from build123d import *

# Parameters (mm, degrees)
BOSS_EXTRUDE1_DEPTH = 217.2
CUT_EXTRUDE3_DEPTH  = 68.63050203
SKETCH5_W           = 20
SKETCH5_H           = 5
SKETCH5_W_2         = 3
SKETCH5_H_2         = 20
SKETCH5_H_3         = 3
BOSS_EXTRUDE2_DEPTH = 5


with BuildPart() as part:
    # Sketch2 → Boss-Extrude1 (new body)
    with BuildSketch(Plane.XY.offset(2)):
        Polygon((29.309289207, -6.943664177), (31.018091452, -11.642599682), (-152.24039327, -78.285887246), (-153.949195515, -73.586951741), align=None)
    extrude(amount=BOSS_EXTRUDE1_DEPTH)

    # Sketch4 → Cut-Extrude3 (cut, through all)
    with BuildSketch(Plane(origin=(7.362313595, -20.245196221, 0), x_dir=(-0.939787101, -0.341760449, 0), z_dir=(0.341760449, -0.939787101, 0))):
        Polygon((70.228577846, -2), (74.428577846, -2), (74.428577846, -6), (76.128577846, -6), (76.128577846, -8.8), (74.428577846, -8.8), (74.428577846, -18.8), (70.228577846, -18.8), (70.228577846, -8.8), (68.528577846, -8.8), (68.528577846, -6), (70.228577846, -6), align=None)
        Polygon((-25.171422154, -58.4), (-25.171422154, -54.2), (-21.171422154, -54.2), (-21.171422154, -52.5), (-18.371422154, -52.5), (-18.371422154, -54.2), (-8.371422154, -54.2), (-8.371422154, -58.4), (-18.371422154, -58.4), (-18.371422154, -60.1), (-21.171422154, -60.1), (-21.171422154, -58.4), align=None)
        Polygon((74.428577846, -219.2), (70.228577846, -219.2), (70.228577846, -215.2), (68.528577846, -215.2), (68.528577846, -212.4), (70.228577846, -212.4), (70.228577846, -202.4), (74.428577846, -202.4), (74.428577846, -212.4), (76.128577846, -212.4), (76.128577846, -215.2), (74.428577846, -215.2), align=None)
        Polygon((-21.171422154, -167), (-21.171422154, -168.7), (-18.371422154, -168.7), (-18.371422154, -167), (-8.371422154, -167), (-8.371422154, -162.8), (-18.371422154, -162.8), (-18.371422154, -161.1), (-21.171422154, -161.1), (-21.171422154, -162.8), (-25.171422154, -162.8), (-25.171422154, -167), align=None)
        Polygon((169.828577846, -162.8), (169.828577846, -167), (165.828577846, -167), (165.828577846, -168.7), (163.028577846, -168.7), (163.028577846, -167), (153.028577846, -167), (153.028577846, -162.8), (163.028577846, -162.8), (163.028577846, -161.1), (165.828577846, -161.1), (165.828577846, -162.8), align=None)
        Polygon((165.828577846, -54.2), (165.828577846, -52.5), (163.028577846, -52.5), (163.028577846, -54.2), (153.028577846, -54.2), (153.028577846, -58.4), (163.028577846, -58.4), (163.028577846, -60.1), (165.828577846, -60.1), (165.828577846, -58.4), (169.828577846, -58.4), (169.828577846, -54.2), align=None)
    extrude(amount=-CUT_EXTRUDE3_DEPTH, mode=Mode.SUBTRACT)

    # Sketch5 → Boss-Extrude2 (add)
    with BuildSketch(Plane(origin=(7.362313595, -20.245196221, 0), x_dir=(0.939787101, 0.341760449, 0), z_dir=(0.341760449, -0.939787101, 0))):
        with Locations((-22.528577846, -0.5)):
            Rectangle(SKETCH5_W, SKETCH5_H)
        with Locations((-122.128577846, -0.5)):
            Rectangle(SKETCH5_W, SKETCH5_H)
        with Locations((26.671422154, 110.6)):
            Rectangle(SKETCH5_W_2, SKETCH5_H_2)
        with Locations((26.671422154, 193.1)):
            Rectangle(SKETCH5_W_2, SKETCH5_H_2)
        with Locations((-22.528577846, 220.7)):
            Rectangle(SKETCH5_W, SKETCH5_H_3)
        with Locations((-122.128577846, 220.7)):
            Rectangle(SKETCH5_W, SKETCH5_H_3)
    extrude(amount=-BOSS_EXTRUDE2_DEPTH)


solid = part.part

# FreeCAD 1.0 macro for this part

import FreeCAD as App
import Part
import Sketcher

V = App.Vector
Q = App.Units.Quantity


def add_polygon(sketch, points):
    """Adds a closed chain of lines whose ends are joined by coincident constraints."""
    first, n = sketch.GeometryCount, len(points)
    for a, b in zip(points, points[1:] + points[:1]):
        sketch.addGeometry(Part.LineSegment(App.Vector(*a, 0), App.Vector(*b, 0)), False)
    for i in range(n):
        sketch.addConstraint(Sketcher.Constraint("Coincident", first + i, 2, first + (i + 1) % n, 1))

doc = App.newDocument("Part")
params = doc.addObject("Spreadsheet::Sheet", "Params")
for row, (alias, value) in enumerate([
    ("sketch1_length", "5 mm"),
    ("sketch1_length2", "195 mm"),
    ("pad1_length", "217.2 mm"),
    ("sketch2_width", "4 mm"),
    ("sketch2_width2", "10 mm"),
    ("sketch2_width3", "4.2 mm"),
    ("sketch2_width4", "1.7 mm"),
    ("sketch2_width5", "2.8 mm"),
    ("sketch3_width", "20 mm"),
    ("sketch3_width2", "3 mm"),
    ("sketch3_height", "5 mm"),
    ("pad2_length", "5 mm"),
], start=1):
    params.set(f"A{row}", alias)
    params.set(f"B{row}", "=" + value)
    params.setAlias(f"B{row}", alias)

body = doc.addObject("PartDesign::Body", "Body")

# Sketch on XY plane
sketch1 = body.newObject("Sketcher::SketchObject", "Sketch")
sketch1.AttachmentSupport = (doc.getObject("XY_Plane"), [""])
sketch1.MapMode = "FlatFace"
sketch1.AttachmentOffset = App.Placement(V(0, 0, 2), App.Rotation())
add_polygon(sketch1, [(31, -11.6), (29.3, -6.9), (-153.9, -73.6), (-152.2, -78.3)])  # lines 0-3
sketch1.addConstraint(Sketcher.Constraint("Perpendicular", 0, 1))
sketch1.addConstraint(Sketcher.Constraint("Perpendicular", 1, 2))
sketch1.addConstraint(Sketcher.Constraint("Perpendicular", 2, 3))
sketch1.addConstraint(Sketcher.Constraint("Distance", 0, Q("5 mm")))
sketch1.addConstraint(Sketcher.Constraint("Distance", 1, Q("195 mm")))
sketch1.addConstraint(Sketcher.Constraint("DistanceY", 3, 2, -1, 1, Q("11.6426 mm")))
sketch1.addConstraint(Sketcher.Constraint("DistanceX", -1, 1, 0, 2, Q("29.309289 mm")))
sketch1.addConstraint(Sketcher.Constraint("DistanceY", 1, 2, -1, 1, Q("73.586952 mm")))
sketch1.setExpression("Constraints[7]", "Params.sketch1_length")
sketch1.setExpression("Constraints[8]", "Params.sketch1_length2")
pad1 = body.newObject("PartDesign::Pad", "Pad")
pad1.Profile = sketch1
pad1.setExpression("Length", "Params.pad1_length")

# Sketch on an angled plane
sketch2 = body.newObject("Sketcher::SketchObject", "Sketch001")
sketch2.Placement = App.Placement(V(7.362314, -20.245196, 0), App.Rotation(V(-0.939787101, -0.341760449, 0), V(0, 0, -1), V(0.341760449, -0.939787101, 0), "ZXY"))
add_polygon(sketch2, [(74.4, -2), (70.2, -2), (70.2, -6), (68.5, -6), (68.5, -8.8), (70.2, -8.8), (70.2, -18.8), (74.4, -18.8), (74.4, -8.8), (76.1, -8.8), (76.1, -6), (74.4, -6)])  # lines 0-11
add_polygon(sketch2, [(-25.2, -54.2), (-25.2, -58.4), (-21.2, -58.4), (-21.2, -60.1), (-18.4, -60.1), (-18.4, -58.4), (-8.4, -58.4), (-8.4, -54.2), (-18.4, -54.2), (-18.4, -52.5), (-21.2, -52.5), (-21.2, -54.2)])  # lines 12-23
add_polygon(sketch2, [(70.2, -219.2), (74.4, -219.2), (74.4, -215.2), (76.1, -215.2), (76.1, -212.4), (74.4, -212.4), (74.4, -202.4), (70.2, -202.4), (70.2, -212.4), (68.5, -212.4), (68.5, -215.2), (70.2, -215.2)])  # lines 24-35
add_polygon(sketch2, [(-21.2, -167), (-21.2, -168.7), (-18.4, -168.7), (-18.4, -167), (-8.4, -167), (-8.4, -162.8), (-18.4, -162.8), (-18.4, -161.1), (-21.2, -161.1), (-21.2, -162.8), (-25.2, -162.8), (-25.2, -167)])  # lines 36-47
add_polygon(sketch2, [(169.8, -167), (169.8, -162.8), (165.8, -162.8), (165.8, -161.1), (163, -161.1), (163, -162.8), (153, -162.8), (153, -167), (163, -167), (163, -168.7), (165.8, -168.7), (165.8, -167)])  # lines 48-59
add_polygon(sketch2, [(165.8, -54.2), (165.8, -52.5), (163, -52.5), (163, -54.2), (153, -54.2), (153, -58.4), (163, -58.4), (163, -60.1), (165.8, -60.1), (165.8, -58.4), (169.8, -58.4), (169.8, -54.2)])  # lines 60-71
sketch2.addConstraint(Sketcher.Constraint("Horizontal", 0))
sketch2.addConstraint(Sketcher.Constraint("Vertical", 1))
sketch2.addConstraint(Sketcher.Constraint("Horizontal", 2))
sketch2.addConstraint(Sketcher.Constraint("Vertical", 3))
sketch2.addConstraint(Sketcher.Constraint("Horizontal", 4))
sketch2.addConstraint(Sketcher.Constraint("Vertical", 5))
sketch2.addConstraint(Sketcher.Constraint("Horizontal", 6))
sketch2.addConstraint(Sketcher.Constraint("Vertical", 7))
sketch2.addConstraint(Sketcher.Constraint("Horizontal", 8))
sketch2.addConstraint(Sketcher.Constraint("Vertical", 9))
sketch2.addConstraint(Sketcher.Constraint("Horizontal", 10))
sketch2.addConstraint(Sketcher.Constraint("Vertical", 11))
sketch2.addConstraint(Sketcher.Constraint("Vertical", 12))
sketch2.addConstraint(Sketcher.Constraint("Horizontal", 13))
sketch2.addConstraint(Sketcher.Constraint("Vertical", 14))
sketch2.addConstraint(Sketcher.Constraint("Horizontal", 15))
sketch2.addConstraint(Sketcher.Constraint("Vertical", 16))
sketch2.addConstraint(Sketcher.Constraint("Horizontal", 17))
sketch2.addConstraint(Sketcher.Constraint("Vertical", 18))
sketch2.addConstraint(Sketcher.Constraint("Horizontal", 19))
sketch2.addConstraint(Sketcher.Constraint("Vertical", 20))
sketch2.addConstraint(Sketcher.Constraint("Horizontal", 21))
sketch2.addConstraint(Sketcher.Constraint("Vertical", 22))
sketch2.addConstraint(Sketcher.Constraint("Horizontal", 23))
sketch2.addConstraint(Sketcher.Constraint("Horizontal", 24))
sketch2.addConstraint(Sketcher.Constraint("Vertical", 25))
sketch2.addConstraint(Sketcher.Constraint("Horizontal", 26))
sketch2.addConstraint(Sketcher.Constraint("Vertical", 27))
sketch2.addConstraint(Sketcher.Constraint("Horizontal", 28))
sketch2.addConstraint(Sketcher.Constraint("Vertical", 29))
sketch2.addConstraint(Sketcher.Constraint("Horizontal", 30))
sketch2.addConstraint(Sketcher.Constraint("Vertical", 31))
sketch2.addConstraint(Sketcher.Constraint("Horizontal", 32))
sketch2.addConstraint(Sketcher.Constraint("Vertical", 33))
sketch2.addConstraint(Sketcher.Constraint("Horizontal", 34))
sketch2.addConstraint(Sketcher.Constraint("Vertical", 35))
sketch2.addConstraint(Sketcher.Constraint("Vertical", 36))
sketch2.addConstraint(Sketcher.Constraint("Horizontal", 37))
sketch2.addConstraint(Sketcher.Constraint("Vertical", 38))
sketch2.addConstraint(Sketcher.Constraint("Horizontal", 39))
sketch2.addConstraint(Sketcher.Constraint("Vertical", 40))
sketch2.addConstraint(Sketcher.Constraint("Horizontal", 41))
sketch2.addConstraint(Sketcher.Constraint("Vertical", 42))
sketch2.addConstraint(Sketcher.Constraint("Horizontal", 43))
sketch2.addConstraint(Sketcher.Constraint("Vertical", 44))
sketch2.addConstraint(Sketcher.Constraint("Horizontal", 45))
sketch2.addConstraint(Sketcher.Constraint("Vertical", 46))
sketch2.addConstraint(Sketcher.Constraint("Horizontal", 47))
sketch2.addConstraint(Sketcher.Constraint("Vertical", 48))
sketch2.addConstraint(Sketcher.Constraint("Horizontal", 49))
sketch2.addConstraint(Sketcher.Constraint("Vertical", 50))
sketch2.addConstraint(Sketcher.Constraint("Horizontal", 51))
sketch2.addConstraint(Sketcher.Constraint("Vertical", 52))
sketch2.addConstraint(Sketcher.Constraint("Horizontal", 53))
sketch2.addConstraint(Sketcher.Constraint("Vertical", 54))
sketch2.addConstraint(Sketcher.Constraint("Horizontal", 55))
sketch2.addConstraint(Sketcher.Constraint("Vertical", 56))
sketch2.addConstraint(Sketcher.Constraint("Horizontal", 57))
sketch2.addConstraint(Sketcher.Constraint("Vertical", 58))
sketch2.addConstraint(Sketcher.Constraint("Horizontal", 59))
sketch2.addConstraint(Sketcher.Constraint("Vertical", 60))
sketch2.addConstraint(Sketcher.Constraint("Horizontal", 61))
sketch2.addConstraint(Sketcher.Constraint("Vertical", 62))
sketch2.addConstraint(Sketcher.Constraint("Horizontal", 63))
sketch2.addConstraint(Sketcher.Constraint("Vertical", 64))
sketch2.addConstraint(Sketcher.Constraint("Horizontal", 65))
sketch2.addConstraint(Sketcher.Constraint("Vertical", 66))
sketch2.addConstraint(Sketcher.Constraint("Horizontal", 67))
sketch2.addConstraint(Sketcher.Constraint("Vertical", 68))
sketch2.addConstraint(Sketcher.Constraint("Horizontal", 69))
sketch2.addConstraint(Sketcher.Constraint("Vertical", 70))
sketch2.addConstraint(Sketcher.Constraint("Horizontal", 71))
sketch2.addConstraint(Sketcher.Constraint("Horizontal", 4, 2, 7, 2))
sketch2.addConstraint(Sketcher.Constraint("Horizontal", 2, 2, 9, 2))
sketch2.addConstraint(Sketcher.Constraint("Horizontal", 13, 2, 16, 2))
sketch2.addConstraint(Sketcher.Constraint("Horizontal", 19, 2, 22, 2))
sketch2.addConstraint(Sketcher.Constraint("Horizontal", 28, 2, 31, 2))
sketch2.addConstraint(Sketcher.Constraint("Horizontal", 26, 2, 33, 2))
sketch2.addConstraint(Sketcher.Constraint("Horizontal", 41, 2, 44, 2))
sketch2.addConstraint(Sketcher.Constraint("Horizontal", 39, 2, 46, 2))
sketch2.addConstraint(Sketcher.Constraint("Horizontal", 45, 2, 48, 2))
sketch2.addConstraint(Sketcher.Constraint("Horizontal", 43, 2, 50, 2))
sketch2.addConstraint(Sketcher.Constraint("Horizontal", 49, 2, 52, 2))
sketch2.addConstraint(Sketcher.Constraint("Horizontal", 47, 2, 54, 2))
sketch2.addConstraint(Sketcher.Constraint("Horizontal", 37, 2, 56, 2))
sketch2.addConstraint(Sketcher.Constraint("Horizontal", 55, 2, 58, 2))
sketch2.addConstraint(Sketcher.Constraint("Horizontal", 21, 2, 60, 2))
sketch2.addConstraint(Sketcher.Constraint("Horizontal", 23, 2, 62, 2))
sketch2.addConstraint(Sketcher.Constraint("Horizontal", 17, 2, 64, 2))
sketch2.addConstraint(Sketcher.Constraint("Horizontal", 15, 2, 66, 2))
sketch2.addConstraint(Sketcher.Constraint("Horizontal", 65, 2, 68, 2))
sketch2.addConstraint(Sketcher.Constraint("Horizontal", 63, 2, 70, 2))
sketch2.addConstraint(Sketcher.Constraint("Vertical", 1, 2, 4, 2))
sketch2.addConstraint(Sketcher.Constraint("Vertical", 7, 2, 10, 2))
sketch2.addConstraint(Sketcher.Constraint("Vertical", 16, 2, 19, 2))
sketch2.addConstraint(Sketcher.Constraint("Vertical", 14, 2, 21, 2))
sketch2.addConstraint(Sketcher.Constraint("Vertical", 11, 2, 24, 2))
sketch2.addConstraint(Sketcher.Constraint("Vertical", 9, 2, 26, 2))
sketch2.addConstraint(Sketcher.Constraint("Vertical", 25, 2, 28, 2))
sketch2.addConstraint(Sketcher.Constraint("Vertical", 5, 2, 30, 2))
sketch2.addConstraint(Sketcher.Constraint("Vertical", 3, 2, 32, 2))
sketch2.addConstraint(Sketcher.Constraint("Vertical", 31, 2, 34, 2))
sketch2.addConstraint(Sketcher.Constraint("Vertical", 22, 2, 36, 2))
sketch2.addConstraint(Sketcher.Constraint("Vertical", 20, 2, 37, 2))
sketch2.addConstraint(Sketcher.Constraint("Vertical", 18, 2, 39, 2))
sketch2.addConstraint(Sketcher.Constraint("Vertical", 38, 2, 41, 2))
sketch2.addConstraint(Sketcher.Constraint("Vertical", 36, 2, 43, 2))
sketch2.addConstraint(Sketcher.Constraint("Vertical", 23, 2, 45, 2))
sketch2.addConstraint(Sketcher.Constraint("Vertical", 52, 2, 55, 2))
sketch2.addConstraint(Sketcher.Constraint("Vertical", 50, 2, 57, 2))
sketch2.addConstraint(Sketcher.Constraint("Vertical", 58, 2, 60, 2))
sketch2.addConstraint(Sketcher.Constraint("Vertical", 56, 2, 61, 2))
sketch2.addConstraint(Sketcher.Constraint("Vertical", 54, 2, 63, 2))
sketch2.addConstraint(Sketcher.Constraint("Vertical", 62, 2, 65, 2))
sketch2.addConstraint(Sketcher.Constraint("Vertical", 60, 2, 67, 2))
sketch2.addConstraint(Sketcher.Constraint("Vertical", 59, 2, 69, 2))
sketch2.addConstraint(Sketcher.Constraint("Equal", 4, 8))
sketch2.addConstraint(Sketcher.Constraint("Equal", 47, 49))
sketch2.addConstraint(Sketcher.Constraint("Equal", 43, 51))
sketch2.addConstraint(Sketcher.Constraint("Equal", 41, 53))
sketch2.addConstraint(Sketcher.Constraint("Equal", 71, 1))
sketch2.addConstraint(Sketcher.Constraint("Equal", 67, 3))
sketch2.addConstraint(Sketcher.Constraint("Equal", 65, 5))
sketch2.addConstraint(Sketcher.Constraint("Equal", 30, 12))
sketch2.addConstraint(Sketcher.Constraint("Equal", 34, 14))
sketch2.addConstraint(Sketcher.Constraint("Equal", 16, 20))
sketch2.addConstraint(Sketcher.Constraint("Equal", 11, 25))
sketch2.addConstraint(Sketcher.Constraint("Equal", 9, 27))
sketch2.addConstraint(Sketcher.Constraint("Equal", 7, 29))
sketch2.addConstraint(Sketcher.Constraint("Equal", 22, 36))
sketch2.addConstraint(Sketcher.Constraint("Equal", 18, 40))
sketch2.addConstraint(Sketcher.Constraint("Equal", 38, 42))
sketch2.addConstraint(Sketcher.Constraint("DistanceX", 13, 1, 13, 2, Q("4 mm")))
sketch2.addConstraint(Sketcher.Constraint("DistanceX", 17, 1, 17, 2, Q("10 mm")))
sketch2.addConstraint(Sketcher.Constraint("DistanceX", 0, 2, 0, 1, Q("4.2 mm")))
sketch2.addConstraint(Sketcher.Constraint("DistanceX", 2, 2, 2, 1, Q("1.7 mm")))
sketch2.addConstraint(Sketcher.Constraint("DistanceX", 15, 1, 15, 2, Q("2.8 mm")))
sketch2.addConstraint(Sketcher.Constraint("DistanceY", 0, 2, -1, 1, Q("2 mm")))
sketch2.addConstraint(Sketcher.Constraint("DistanceY", 38, 2, -1, 1, Q("167 mm")))
sketch2.addConstraint(Sketcher.Constraint("DistanceY", 12, 2, -1, 1, Q("58.4 mm")))
sketch2.addConstraint(Sketcher.Constraint("DistanceY", 24, 2, -1, 1, Q("219.2 mm")))
sketch2.addConstraint(Sketcher.Constraint("DistanceX", -1, 1, 0, 2, Q("70.228578 mm")))
sketch2.addConstraint(Sketcher.Constraint("DistanceX", 12, 2, -1, 1, Q("25.171422 mm")))
sketch2.addConstraint(Sketcher.Constraint("DistanceX", -1, 1, 48, 2, Q("169.828578 mm")))
sketch2.setExpression("Constraints[204]", "Params.sketch2_width")
sketch2.setExpression("Constraints[205]", "Params.sketch2_width2")
sketch2.setExpression("Constraints[206]", "Params.sketch2_width3")
sketch2.setExpression("Constraints[207]", "Params.sketch2_width4")
sketch2.setExpression("Constraints[208]", "Params.sketch2_width5")
pocket1 = body.newObject("PartDesign::Pocket", "Pocket")
pocket1.Profile = sketch2
pocket1.Type = "ThroughAll"

# Sketch on an angled plane
sketch3 = body.newObject("Sketcher::SketchObject", "Sketch002")
sketch3.Placement = App.Placement(V(7.362314, -20.245196, 0), App.Rotation(V(0.939787101, 0.341760449, 0), V(0, 0, 1), V(0.341760449, -0.939787101, 0), "ZXY"))
add_polygon(sketch3, [(-32.5, 2), (-32.5, -3), (-12.5, -3), (-12.5, 2)])  # lines 0-3
add_polygon(sketch3, [(-132.1, 2), (-132.1, -3), (-112.1, -3), (-112.1, 2)])  # lines 4-7
add_polygon(sketch3, [(25.2, 120.6), (25.2, 100.6), (28.2, 100.6), (28.2, 120.6)])  # lines 8-11
add_polygon(sketch3, [(25.2, 203.1), (25.2, 183.1), (28.2, 183.1), (28.2, 203.1)])  # lines 12-15
add_polygon(sketch3, [(-32.5, 222.2), (-32.5, 219.2), (-12.5, 219.2), (-12.5, 222.2)])  # lines 16-19
add_polygon(sketch3, [(-132.1, 222.2), (-132.1, 219.2), (-112.1, 219.2), (-112.1, 222.2)])  # lines 20-23
sketch3.addConstraint(Sketcher.Constraint("Vertical", 0))
sketch3.addConstraint(Sketcher.Constraint("Horizontal", 1))
sketch3.addConstraint(Sketcher.Constraint("Vertical", 2))
sketch3.addConstraint(Sketcher.Constraint("Horizontal", 3))
sketch3.addConstraint(Sketcher.Constraint("Vertical", 4))
sketch3.addConstraint(Sketcher.Constraint("Horizontal", 5))
sketch3.addConstraint(Sketcher.Constraint("Vertical", 6))
sketch3.addConstraint(Sketcher.Constraint("Horizontal", 7))
sketch3.addConstraint(Sketcher.Constraint("Vertical", 8))
sketch3.addConstraint(Sketcher.Constraint("Horizontal", 9))
sketch3.addConstraint(Sketcher.Constraint("Vertical", 10))
sketch3.addConstraint(Sketcher.Constraint("Horizontal", 11))
sketch3.addConstraint(Sketcher.Constraint("Vertical", 12))
sketch3.addConstraint(Sketcher.Constraint("Horizontal", 13))
sketch3.addConstraint(Sketcher.Constraint("Vertical", 14))
sketch3.addConstraint(Sketcher.Constraint("Horizontal", 15))
sketch3.addConstraint(Sketcher.Constraint("Vertical", 16))
sketch3.addConstraint(Sketcher.Constraint("Horizontal", 17))
sketch3.addConstraint(Sketcher.Constraint("Vertical", 18))
sketch3.addConstraint(Sketcher.Constraint("Horizontal", 19))
sketch3.addConstraint(Sketcher.Constraint("Vertical", 20))
sketch3.addConstraint(Sketcher.Constraint("Horizontal", 21))
sketch3.addConstraint(Sketcher.Constraint("Vertical", 22))
sketch3.addConstraint(Sketcher.Constraint("Horizontal", 23))
sketch3.addConstraint(Sketcher.Constraint("Horizontal", 1, 2, 4, 2))
sketch3.addConstraint(Sketcher.Constraint("Horizontal", 3, 2, 6, 2))
sketch3.addConstraint(Sketcher.Constraint("Horizontal", 17, 2, 20, 2))
sketch3.addConstraint(Sketcher.Constraint("Horizontal", 19, 2, 22, 2))
sketch3.addConstraint(Sketcher.Constraint("Vertical", 11, 2, 12, 2))
sketch3.addConstraint(Sketcher.Constraint("Vertical", 10, 2, 13, 2))
sketch3.addConstraint(Sketcher.Constraint("Vertical", 3, 2, 16, 2))
sketch3.addConstraint(Sketcher.Constraint("Vertical", 2, 2, 17, 2))
sketch3.addConstraint(Sketcher.Constraint("Vertical", 7, 2, 20, 2))
sketch3.addConstraint(Sketcher.Constraint("Vertical", 6, 2, 21, 2))
sketch3.addConstraint(Sketcher.Constraint("Equal", 3, 5))
sketch3.addConstraint(Sketcher.Constraint("Equal", 23, 8))
sketch3.addConstraint(Sketcher.Constraint("Equal", 10, 12))
sketch3.addConstraint(Sketcher.Constraint("Equal", 15, 16))
sketch3.addConstraint(Sketcher.Constraint("DistanceX", 1, 1, 1, 2, Q("20 mm")))
sketch3.addConstraint(Sketcher.Constraint("DistanceX", 9, 1, 9, 2, Q("3 mm")))
sketch3.addConstraint(Sketcher.Constraint("DistanceY", 0, 2, 0, 1, Q("5 mm")))
sketch3.addConstraint(Sketcher.Constraint("DistanceY", 0, 2, -1, 1, Q("3 mm")))
sketch3.addConstraint(Sketcher.Constraint("DistanceY", -1, 1, 8, 2, Q("100.6 mm")))
sketch3.addConstraint(Sketcher.Constraint("DistanceY", -1, 1, 12, 2, Q("183.1 mm")))
sketch3.addConstraint(Sketcher.Constraint("DistanceY", -1, 1, 16, 2, Q("219.2 mm")))
sketch3.addConstraint(Sketcher.Constraint("DistanceX", 4, 2, 0, 2, Q("99.6 mm")))
sketch3.addConstraint(Sketcher.Constraint("DistanceX", 2, 2, 8, 2, Q("37.7 mm")))
sketch3.addConstraint(Sketcher.Constraint("DistanceX", 0, 2, -1, 1, Q("32.528578 mm")))
sketch3.setExpression("Constraints[62]", "Params.sketch3_width")
sketch3.setExpression("Constraints[63]", "Params.sketch3_width2")
sketch3.setExpression("Constraints[64]", "Params.sketch3_height")
pad2 = body.newObject("PartDesign::Pad", "Pad001")
pad2.Profile = sketch3
pad2.setExpression("Length", "Params.pad2_length")
pad2.Reversed = True

doc.recompute()
